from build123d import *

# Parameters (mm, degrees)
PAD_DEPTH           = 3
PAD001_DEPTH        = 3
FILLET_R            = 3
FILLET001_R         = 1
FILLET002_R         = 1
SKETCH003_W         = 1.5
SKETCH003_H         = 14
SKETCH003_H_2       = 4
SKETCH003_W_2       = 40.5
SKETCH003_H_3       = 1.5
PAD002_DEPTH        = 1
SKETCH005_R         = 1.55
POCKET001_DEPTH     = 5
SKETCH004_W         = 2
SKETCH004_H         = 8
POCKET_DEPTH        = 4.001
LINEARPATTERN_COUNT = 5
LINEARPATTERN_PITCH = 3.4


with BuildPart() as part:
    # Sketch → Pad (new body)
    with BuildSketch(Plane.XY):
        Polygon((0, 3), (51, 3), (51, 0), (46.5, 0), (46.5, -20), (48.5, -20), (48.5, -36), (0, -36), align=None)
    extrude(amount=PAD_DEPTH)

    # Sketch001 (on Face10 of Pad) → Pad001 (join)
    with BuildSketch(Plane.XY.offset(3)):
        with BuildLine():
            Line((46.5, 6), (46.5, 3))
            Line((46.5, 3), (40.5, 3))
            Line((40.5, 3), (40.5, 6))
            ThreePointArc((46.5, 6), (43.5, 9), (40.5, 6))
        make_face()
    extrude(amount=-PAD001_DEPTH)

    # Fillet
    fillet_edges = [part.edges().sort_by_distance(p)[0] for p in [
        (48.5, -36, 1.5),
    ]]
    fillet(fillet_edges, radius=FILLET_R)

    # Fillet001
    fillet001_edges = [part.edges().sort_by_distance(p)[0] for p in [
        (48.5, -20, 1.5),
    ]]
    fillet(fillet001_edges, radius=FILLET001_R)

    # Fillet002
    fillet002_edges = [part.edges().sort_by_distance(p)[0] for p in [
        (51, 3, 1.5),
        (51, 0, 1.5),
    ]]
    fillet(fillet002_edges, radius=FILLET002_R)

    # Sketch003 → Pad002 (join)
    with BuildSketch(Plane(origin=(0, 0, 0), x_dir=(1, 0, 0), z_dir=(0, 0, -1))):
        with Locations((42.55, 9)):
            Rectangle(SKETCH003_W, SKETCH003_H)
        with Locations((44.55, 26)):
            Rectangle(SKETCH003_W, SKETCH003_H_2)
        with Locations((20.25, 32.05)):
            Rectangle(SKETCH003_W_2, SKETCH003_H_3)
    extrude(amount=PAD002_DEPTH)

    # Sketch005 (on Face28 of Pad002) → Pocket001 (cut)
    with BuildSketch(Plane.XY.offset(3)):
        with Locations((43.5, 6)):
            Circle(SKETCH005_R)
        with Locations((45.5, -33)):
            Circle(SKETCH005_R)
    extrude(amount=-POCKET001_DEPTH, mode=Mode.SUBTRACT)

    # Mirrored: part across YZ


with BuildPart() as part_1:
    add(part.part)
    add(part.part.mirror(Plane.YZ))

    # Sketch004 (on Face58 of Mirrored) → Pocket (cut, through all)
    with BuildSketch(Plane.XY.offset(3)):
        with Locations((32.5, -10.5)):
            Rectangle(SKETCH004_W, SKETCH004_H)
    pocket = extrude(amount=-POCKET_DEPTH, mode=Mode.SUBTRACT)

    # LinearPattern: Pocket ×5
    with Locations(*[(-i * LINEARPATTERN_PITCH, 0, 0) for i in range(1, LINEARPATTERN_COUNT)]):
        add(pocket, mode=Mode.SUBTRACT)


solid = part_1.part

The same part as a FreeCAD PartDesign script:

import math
import FreeCAD as App
import Part
import Sketcher
from FreeCAD import Vector


def edges_at(feature, points):
    """Names of the edges that pass closest to the given points."""
    edges = feature.Shape.Edges
    near = lambda p: min(range(len(edges)), key=lambda i: edges[i].distToShape(Part.Vertex(*p))[0])
    return sorted({f"Edge{near(p) + 1}" for p in points})


def add_polygon(sketch, points):
    """Adds a closed chain of lines whose ends are joined by coincident constraints."""
    first, n = sketch.GeometryCount, len(points)
    for a, b in zip(points, points[1:] + points[:1]):
        sketch.addGeometry(Part.LineSegment(App.Vector(*a, 0), App.Vector(*b, 0)), False)
    for i in range(n):
        sketch.addConstraint(Sketcher.Constraint("Coincident", first + i, 2, first + (i + 1) % n, 1))

doc = App.newDocument("Part")
body = doc.addObject("PartDesign::Body", "Body")

# Sketch on XY plane
sketch1 = body.newObject("Sketcher::SketchObject", "Sketch")
sketch1.AttachmentSupport = (doc.getObject("XY_Plane"), [""])
sketch1.MapMode = "FlatFace"
add_polygon(sketch1, [(51, 3), (0, 3), (0, -36), (48.5, -36), (48.5, -20), (46.5, -20), (46.5, 0), (51, 0)])  # lines 0-7
sketch1.addConstraint([
    Sketcher.Constraint("Horizontal", 0),
    Sketcher.Constraint("Vertical", 1),
    Sketcher.Constraint("Horizontal", 2),
    Sketcher.Constraint("Vertical", 3),
    Sketcher.Constraint("Horizontal", 4),
    Sketcher.Constraint("Vertical", 5),
    Sketcher.Constraint("Horizontal", 6),
    Sketcher.Constraint("Vertical", 7),
    Sketcher.Constraint("PointOnObject", 0, 2, -2),
    Sketcher.Constraint("PointOnObject", 5, 2, -1),
    Sketcher.Constraint("DistanceX", 0, 2, 0, 1, 51.0),
    Sketcher.Constraint("DistanceX", 4, 2, 4, 1, 2.0),
    Sketcher.Constraint("DistanceY", 1, 2, 1, 1, 39.0),
    Sketcher.Constraint("DistanceY", 3, 1, 3, 2, 16.0),
    Sketcher.Constraint("DistanceY", 5, 1, 5, 2, 20.0),
    Sketcher.Constraint("DistanceX", 2, 1, 2, 2, 48.5),
])
pad1 = body.newObject("PartDesign::Pad", "Pad")
pad1.Profile = sketch1
pad1.Length = 3

# Sketch on XY plane
sketch2 = body.newObject("Sketcher::SketchObject", "Sketch001")
sketch2.AttachmentSupport = (doc.getObject("XY_Plane"), [""])
sketch2.MapMode = "FlatFace"
sketch2.AttachmentOffset = App.Placement(Vector(0, 0, 3), App.Rotation())
sketch2.addGeometry([
    Part.LineSegment(Vector(46.5, 3, 0), Vector(46.5, 6, 0)),
    Part.ArcOfCircle(Part.Circle(Vector(43.5, 6, 0), Vector(0, 0, 1), 3), math.radians(0), math.radians(180)),
    Part.LineSegment(Vector(40.5, 6, 0), Vector(40.5, 3, 0)),
    Part.LineSegment(Vector(40.5, 3, 0), Vector(46.5, 3, 0)),
], False)
sketch2.addConstraint([
    Sketcher.Constraint("Tangent", 0, 2, 1, 1),
    Sketcher.Constraint("Tangent", 1, 2, 2, 1),
    Sketcher.Constraint("Coincident", 2, 2, 3, 1),
    Sketcher.Constraint("Coincident", 3, 2, 0, 1),
    Sketcher.Constraint("Vertical", 0),
    Sketcher.Constraint("Vertical", 2),
    Sketcher.Constraint("Horizontal", 3),
    Sketcher.Constraint("Radius", 1, 3.0),
    Sketcher.Constraint("DistanceY", 0, 1, 0, 2, 3.0),
    Sketcher.Constraint("DistanceY", -1, 1, 1, 3, 6.0),
    Sketcher.Constraint("DistanceX", -1, 1, 1, 3, 43.5),
])
pad2 = body.newObject("PartDesign::Pad", "Pad001")
pad2.Profile = sketch2
pad2.Length = 3
pad2.Reversed = True
doc.recompute()

fillet = body.newObject("PartDesign::Fillet", "Fillet")
fillet.Base = (pad2, edges_at(pad2, [(48.5, -36, 1.5)]))
fillet.Radius = 3
doc.recompute()

fillet2 = body.newObject("PartDesign::Fillet", "Fillet001")
fillet2.Base = (fillet, edges_at(fillet, [(48.5, -20, 1.5)]))
fillet2.Radius = 1
doc.recompute()

fillet3 = body.newObject("PartDesign::Fillet", "Fillet002")
fillet3.Base = (fillet2, edges_at(fillet2, [(51, 3, 1.5), (51, 0, 1.5)]))
fillet3.Radius = 1

# Sketch on XY plane
sketch3 = body.newObject("Sketcher::SketchObject", "Sketch002")
sketch3.AttachmentSupport = (doc.getObject("XY_Plane"), [""])
sketch3.MapMode = "FlatFace"
add_polygon(sketch3, [(41.8, -16), (41.8, -2), (43.3, -2), (43.3, -16)])  # lines 0-3
add_polygon(sketch3, [(43.8, -28), (43.8, -24), (45.3, -24), (45.3, -28)])  # lines 4-7
add_polygon(sketch3, [(0, -32.8), (0, -31.3), (40.5, -31.3), (40.5, -32.8)])  # lines 8-11
sketch3.addConstraint([
    Sketcher.Constraint("Vertical", 0),
    Sketcher.Constraint("Horizontal", 1),
    Sketcher.Constraint("Vertical", 2),
    Sketcher.Constraint("Horizontal", 3),
    Sketcher.Constraint("Vertical", 4),
    Sketcher.Constraint("Horizontal", 5),
    Sketcher.Constraint("Vertical", 6),
    Sketcher.Constraint("Horizontal", 7),
    Sketcher.Constraint("Vertical", 8),
    Sketcher.Constraint("Horizontal", 9),
    Sketcher.Constraint("Vertical", 10),
    Sketcher.Constraint("Horizontal", 11),
    Sketcher.Constraint("PointOnObject", 8, 2, -2),
    Sketcher.Constraint("Equal", 3, 5),
    Sketcher.Constraint("Equal", 7, 8),
    Sketcher.Constraint("DistanceY", 0, 1, 0, 2, 14.0),
    Sketcher.Constraint("DistanceY", 4, 1, 4, 2, 4.0),
    Sketcher.Constraint("DistanceX", 1, 1, 1, 2, 1.5),
    Sketcher.Constraint("DistanceX", 9, 1, 9, 2, 40.5),
    Sketcher.Constraint("DistanceY", 0, 2, -1, 1, 2.0),
    Sketcher.Constraint("DistanceY", 4, 2, -1, 1, 24.0),
    Sketcher.Constraint("DistanceX", 3, 2, 4, 2, 2.0),
    Sketcher.Constraint("DistanceX", -1, 1, 0, 2, 41.8),
    Sketcher.Constraint("DistanceY", 8, 2, -1, 1, 31.3),
])
pad3 = body.newObject("PartDesign::Pad", "Pad002")
pad3.Profile = sketch3
pad3.Length = 1
pad3.Reversed = True

# Sketch on XY plane
sketch4 = body.newObject("Sketcher::SketchObject", "Sketch003")
sketch4.AttachmentSupport = (doc.getObject("XY_Plane"), [""])
sketch4.MapMode = "FlatFace"
sketch4.AttachmentOffset = App.Placement(Vector(0, 0, 3), App.Rotation())
sketch4.addGeometry([
    Part.Circle(Vector(43.5, 6, 0), Vector(0, 0, 1), 1.55),
    Part.Circle(Vector(45.5, -33, 0), Vector(0, 0, 1), 1.55),
], False)
sketch4.addConstraint([
    Sketcher.Constraint("Equal", 0, 1),
    Sketcher.Constraint("Diameter", 0, 3.1),
    Sketcher.Constraint("DistanceY", -1, 1, 0, 3, 6.0),
    Sketcher.Constraint("DistanceY", 1, 3, -1, 1, 33.0),
    Sketcher.Constraint("DistanceX", 0, 3, 1, 3, 2.0),
    Sketcher.Constraint("DistanceX", -1, 1, 0, 3, 43.5),
])
pocket1 = body.newObject("PartDesign::Pocket", "Pocket")
pocket1.Profile = sketch4
pocket1.Length = 5
body2 = doc.addObject("PartDesign::Body", "Body001")
doc.recompute()

body2.BaseFeature = body
doc.recompute()

mirroring = doc.addObject("Part::Mirroring", "Mirroring")
mirroring.Source = body
mirroring.Base = Vector(0, 0, 0)
mirroring.Normal = Vector(1, 0, 0)
body3 = doc.addObject("PartDesign::Body", "Body002")
body3.BaseFeature = mirroring
boolean = body2.newObject("PartDesign::Boolean", "Boolean")
boolean.Type = "Fuse"
boolean.addObjects([body3])
doc.recompute()

# Sketch on XY plane
sketch5 = body2.newObject("Sketcher::SketchObject", "Sketch004")
sketch5.AttachmentSupport = (doc.getObject("XY_Plane001"), [""])
sketch5.MapMode = "FlatFace"
sketch5.AttachmentOffset = App.Placement(Vector(0, 0, 3), App.Rotation())
add_polygon(sketch5, [(31.5, -6.5), (31.5, -14.5), (33.5, -14.5), (33.5, -6.5)])  # lines 0-3
sketch5.addConstraint([
    Sketcher.Constraint("Vertical", 0),
    Sketcher.Constraint("Horizontal", 1),
    Sketcher.Constraint("Vertical", 2),
    Sketcher.Constraint("Horizontal", 3),
    Sketcher.Constraint("DistanceX", 1, 1, 1, 2, 2.0),
    Sketcher.Constraint("DistanceY", 0, 2, 0, 1, 8.0),
    Sketcher.Constraint("DistanceX", -1, 1, 0, 2, 31.5),
    Sketcher.Constraint("DistanceY", 0, 2, -1, 1, 14.5),
])
pocket2 = body2.newObject("PartDesign::Pocket", "Pocket001")
pocket2.Profile = sketch5
pocket2.Type = "ThroughAll"
doc.recompute()

linearpattern = body2.newObject("PartDesign::LinearPattern", "LinearPattern")
linearpattern.Originals = [pocket2]
linearpattern.Direction = (doc.getObject("X_Axis001"), [""])
linearpattern.Mode = "offset"
linearpattern.Offset = 3.4
linearpattern.Occurrences = 5
linearpattern.Reversed = True
body2.Tip = linearpattern
mirroring.Visibility = False

doc.recompute()
